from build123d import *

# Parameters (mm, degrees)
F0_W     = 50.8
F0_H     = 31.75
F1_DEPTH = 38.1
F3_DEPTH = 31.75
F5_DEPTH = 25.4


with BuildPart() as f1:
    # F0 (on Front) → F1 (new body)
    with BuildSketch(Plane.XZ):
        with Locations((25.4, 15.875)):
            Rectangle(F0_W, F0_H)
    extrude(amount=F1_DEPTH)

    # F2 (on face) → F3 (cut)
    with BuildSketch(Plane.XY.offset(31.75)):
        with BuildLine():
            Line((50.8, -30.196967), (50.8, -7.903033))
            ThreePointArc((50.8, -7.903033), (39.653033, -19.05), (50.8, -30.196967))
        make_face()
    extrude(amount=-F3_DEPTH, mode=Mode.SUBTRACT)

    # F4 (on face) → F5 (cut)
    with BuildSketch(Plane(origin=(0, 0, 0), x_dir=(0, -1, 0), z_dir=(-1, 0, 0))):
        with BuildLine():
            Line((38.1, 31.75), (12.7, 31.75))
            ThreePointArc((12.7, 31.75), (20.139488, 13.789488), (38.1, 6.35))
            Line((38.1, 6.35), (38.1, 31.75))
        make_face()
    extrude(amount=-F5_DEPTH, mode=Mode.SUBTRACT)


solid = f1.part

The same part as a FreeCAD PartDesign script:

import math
import FreeCAD as App
import Part
import Sketcher
Q = App.Units.Quantity

doc = App.newDocument("Part")
params = doc.addObject("Spreadsheet::Sheet", "Params")
for row, (alias, value) in enumerate([
    ("sketch1_width", "2 in"),
    ("sketch1_height", "1.25 in"),
    ("pad1_length", "1.5 in"),
    ("pocket1_length", "1.25 in"),
    ("sketch3_radius", "1 in"),
    ("pocket2_length", "1 in"),
], start=1):
    params.set(f"A{row}", alias)
    params.set(f"B{row}", "=" + value)
    params.setAlias(f"B{row}", alias)

body = doc.addObject("PartDesign::Body", "Body")

sketch1 = body.newObject("Sketcher::SketchObject", "Sketch")
sketch1.AttachmentSupport = (doc.getObject("XZ_Plane"), [""])
sketch1.MapMode = "FlatFace"
sketch1.addGeometry([
    Part.LineSegment(App.Vector(0, 31.75, 0), App.Vector(0, 0, 0)),
    Part.LineSegment(App.Vector(0, 0, 0), App.Vector(50.8, 0, 0)),
    Part.LineSegment(App.Vector(50.8, 0, 0), App.Vector(50.8, 31.75, 0)),
    Part.LineSegment(App.Vector(50.8, 31.75, 0), App.Vector(0, 31.75, 0)),
], False)
sketch1.addConstraint([
    Sketcher.Constraint("Coincident", 0, 2, 1, 1),
    Sketcher.Constraint("Coincident", 1, 2, 2, 1),
    Sketcher.Constraint("Coincident", 2, 2, 3, 1),
    Sketcher.Constraint("Coincident", 3, 2, 0, 1),
    Sketcher.Constraint("Vertical", 0),
    Sketcher.Constraint("Horizontal", 1),
    Sketcher.Constraint("Vertical", 2),
    Sketcher.Constraint("Horizontal", 3),
    Sketcher.Constraint("Coincident", 0, 2, -1, 1),
    Sketcher.Constraint("DistanceX", 1, 1, 1, 2, Q("2 in")),
    Sketcher.Constraint("DistanceY", 0, 2, 0, 1, Q("1.25 in")),
])
sketch1.setExpression("Constraints[9]", "Params.sketch1_width")
sketch1.setExpression("Constraints[10]", "Params.sketch1_height")
pad1 = body.newObject("PartDesign::Pad", "Pad")
pad1.Profile = sketch1
pad1.setExpression("Length", "Params.pad1_length")

sketch2 = body.newObject("Sketcher::SketchObject", "Sketch001")
sketch2.AttachmentSupport = (doc.getObject("XY_Plane"), [""])
sketch2.MapMode = "FlatFace"
sketch2.AttachmentOffset = App.Placement(App.Vector(0, 0, 1.25 * 25.4), App.Rotation())
sketch2.addGeometry([
    Part.LineSegment(App.Vector(50.8, -30.196967, 0), App.Vector(50.8, -7.903033, 0)),
    Part.ArcOfCircle(Part.Circle(App.Vector(50.8, -19.05, 0), App.Vector(0, 0, 1), 11.146967), math.radians(90), math.radians(270)),
], False)
sketch2.addConstraint([
    Sketcher.Constraint("Coincident", 0, 1, 1, 2),
    Sketcher.Constraint("Coincident", 1, 1, 0, 2),
    Sketcher.Constraint("Vertical", 0),
    Sketcher.Constraint("Vertical", 1, 3, 0, 1),
    Sketcher.Constraint("DistanceX", -1, 1, 1, 3, Q("2 in")),
    Sketcher.Constraint("DistanceY", 1, 3, -1, 1, Q("0.75 in")),
    Sketcher.Constraint("Radius", 1, Q("11.146967 mm")),
])
pocket1 = body.newObject("PartDesign::Pocket", "Pocket")
pocket1.Profile = sketch2
pocket1.setExpression("Length", "Params.pocket1_length")

sketch3 = body.newObject("Sketcher::SketchObject", "Sketch002")
sketch3.AttachmentSupport = (doc.getObject("YZ_Plane"), [""])
sketch3.MapMode = "FlatFace"
sketch3.addGeometry([
    Part.LineSegment(App.Vector(-38.1, 31.75, 0), App.Vector(-12.7, 31.75, 0)),
    Part.ArcOfCircle(Part.Circle(App.Vector(-38.100001, 31.750001, 0), App.Vector(0, 0, 1), 25.400001), math.radians(-89.999998), math.radians(-0.000002)),
    Part.LineSegment(App.Vector(-38.1, 6.35, 0), App.Vector(-38.1, 31.75, 0)),
], False)
sketch3.addConstraint([
    Sketcher.Constraint("Coincident", 0, 2, 1, 2),
    Sketcher.Constraint("Coincident", 1, 1, 2, 1),
    Sketcher.Constraint("Coincident", 2, 2, 0, 1),
    Sketcher.Constraint("Horizontal", 0),
    Sketcher.Constraint("Vertical", 2),
    Sketcher.Constraint("Coincident", 2, 2, 1, 3),
    Sketcher.Constraint("Radius", 1, Q("1 in")),
    Sketcher.Constraint("DistanceX", 1, 3, -1, 1, Q("1.5 in")),
    Sketcher.Constraint("DistanceY", -1, 1, 1, 3, Q("1.25 in")),
])
sketch3.setExpression("Constraints[6]", "Params.sketch3_radius")
pocket2 = body.newObject("PartDesign::Pocket", "Pocket001")
pocket2.Profile = sketch3
pocket2.setExpression("Length", "Params.pocket2_length")
pocket2.Reversed = True

doc.recompute()
